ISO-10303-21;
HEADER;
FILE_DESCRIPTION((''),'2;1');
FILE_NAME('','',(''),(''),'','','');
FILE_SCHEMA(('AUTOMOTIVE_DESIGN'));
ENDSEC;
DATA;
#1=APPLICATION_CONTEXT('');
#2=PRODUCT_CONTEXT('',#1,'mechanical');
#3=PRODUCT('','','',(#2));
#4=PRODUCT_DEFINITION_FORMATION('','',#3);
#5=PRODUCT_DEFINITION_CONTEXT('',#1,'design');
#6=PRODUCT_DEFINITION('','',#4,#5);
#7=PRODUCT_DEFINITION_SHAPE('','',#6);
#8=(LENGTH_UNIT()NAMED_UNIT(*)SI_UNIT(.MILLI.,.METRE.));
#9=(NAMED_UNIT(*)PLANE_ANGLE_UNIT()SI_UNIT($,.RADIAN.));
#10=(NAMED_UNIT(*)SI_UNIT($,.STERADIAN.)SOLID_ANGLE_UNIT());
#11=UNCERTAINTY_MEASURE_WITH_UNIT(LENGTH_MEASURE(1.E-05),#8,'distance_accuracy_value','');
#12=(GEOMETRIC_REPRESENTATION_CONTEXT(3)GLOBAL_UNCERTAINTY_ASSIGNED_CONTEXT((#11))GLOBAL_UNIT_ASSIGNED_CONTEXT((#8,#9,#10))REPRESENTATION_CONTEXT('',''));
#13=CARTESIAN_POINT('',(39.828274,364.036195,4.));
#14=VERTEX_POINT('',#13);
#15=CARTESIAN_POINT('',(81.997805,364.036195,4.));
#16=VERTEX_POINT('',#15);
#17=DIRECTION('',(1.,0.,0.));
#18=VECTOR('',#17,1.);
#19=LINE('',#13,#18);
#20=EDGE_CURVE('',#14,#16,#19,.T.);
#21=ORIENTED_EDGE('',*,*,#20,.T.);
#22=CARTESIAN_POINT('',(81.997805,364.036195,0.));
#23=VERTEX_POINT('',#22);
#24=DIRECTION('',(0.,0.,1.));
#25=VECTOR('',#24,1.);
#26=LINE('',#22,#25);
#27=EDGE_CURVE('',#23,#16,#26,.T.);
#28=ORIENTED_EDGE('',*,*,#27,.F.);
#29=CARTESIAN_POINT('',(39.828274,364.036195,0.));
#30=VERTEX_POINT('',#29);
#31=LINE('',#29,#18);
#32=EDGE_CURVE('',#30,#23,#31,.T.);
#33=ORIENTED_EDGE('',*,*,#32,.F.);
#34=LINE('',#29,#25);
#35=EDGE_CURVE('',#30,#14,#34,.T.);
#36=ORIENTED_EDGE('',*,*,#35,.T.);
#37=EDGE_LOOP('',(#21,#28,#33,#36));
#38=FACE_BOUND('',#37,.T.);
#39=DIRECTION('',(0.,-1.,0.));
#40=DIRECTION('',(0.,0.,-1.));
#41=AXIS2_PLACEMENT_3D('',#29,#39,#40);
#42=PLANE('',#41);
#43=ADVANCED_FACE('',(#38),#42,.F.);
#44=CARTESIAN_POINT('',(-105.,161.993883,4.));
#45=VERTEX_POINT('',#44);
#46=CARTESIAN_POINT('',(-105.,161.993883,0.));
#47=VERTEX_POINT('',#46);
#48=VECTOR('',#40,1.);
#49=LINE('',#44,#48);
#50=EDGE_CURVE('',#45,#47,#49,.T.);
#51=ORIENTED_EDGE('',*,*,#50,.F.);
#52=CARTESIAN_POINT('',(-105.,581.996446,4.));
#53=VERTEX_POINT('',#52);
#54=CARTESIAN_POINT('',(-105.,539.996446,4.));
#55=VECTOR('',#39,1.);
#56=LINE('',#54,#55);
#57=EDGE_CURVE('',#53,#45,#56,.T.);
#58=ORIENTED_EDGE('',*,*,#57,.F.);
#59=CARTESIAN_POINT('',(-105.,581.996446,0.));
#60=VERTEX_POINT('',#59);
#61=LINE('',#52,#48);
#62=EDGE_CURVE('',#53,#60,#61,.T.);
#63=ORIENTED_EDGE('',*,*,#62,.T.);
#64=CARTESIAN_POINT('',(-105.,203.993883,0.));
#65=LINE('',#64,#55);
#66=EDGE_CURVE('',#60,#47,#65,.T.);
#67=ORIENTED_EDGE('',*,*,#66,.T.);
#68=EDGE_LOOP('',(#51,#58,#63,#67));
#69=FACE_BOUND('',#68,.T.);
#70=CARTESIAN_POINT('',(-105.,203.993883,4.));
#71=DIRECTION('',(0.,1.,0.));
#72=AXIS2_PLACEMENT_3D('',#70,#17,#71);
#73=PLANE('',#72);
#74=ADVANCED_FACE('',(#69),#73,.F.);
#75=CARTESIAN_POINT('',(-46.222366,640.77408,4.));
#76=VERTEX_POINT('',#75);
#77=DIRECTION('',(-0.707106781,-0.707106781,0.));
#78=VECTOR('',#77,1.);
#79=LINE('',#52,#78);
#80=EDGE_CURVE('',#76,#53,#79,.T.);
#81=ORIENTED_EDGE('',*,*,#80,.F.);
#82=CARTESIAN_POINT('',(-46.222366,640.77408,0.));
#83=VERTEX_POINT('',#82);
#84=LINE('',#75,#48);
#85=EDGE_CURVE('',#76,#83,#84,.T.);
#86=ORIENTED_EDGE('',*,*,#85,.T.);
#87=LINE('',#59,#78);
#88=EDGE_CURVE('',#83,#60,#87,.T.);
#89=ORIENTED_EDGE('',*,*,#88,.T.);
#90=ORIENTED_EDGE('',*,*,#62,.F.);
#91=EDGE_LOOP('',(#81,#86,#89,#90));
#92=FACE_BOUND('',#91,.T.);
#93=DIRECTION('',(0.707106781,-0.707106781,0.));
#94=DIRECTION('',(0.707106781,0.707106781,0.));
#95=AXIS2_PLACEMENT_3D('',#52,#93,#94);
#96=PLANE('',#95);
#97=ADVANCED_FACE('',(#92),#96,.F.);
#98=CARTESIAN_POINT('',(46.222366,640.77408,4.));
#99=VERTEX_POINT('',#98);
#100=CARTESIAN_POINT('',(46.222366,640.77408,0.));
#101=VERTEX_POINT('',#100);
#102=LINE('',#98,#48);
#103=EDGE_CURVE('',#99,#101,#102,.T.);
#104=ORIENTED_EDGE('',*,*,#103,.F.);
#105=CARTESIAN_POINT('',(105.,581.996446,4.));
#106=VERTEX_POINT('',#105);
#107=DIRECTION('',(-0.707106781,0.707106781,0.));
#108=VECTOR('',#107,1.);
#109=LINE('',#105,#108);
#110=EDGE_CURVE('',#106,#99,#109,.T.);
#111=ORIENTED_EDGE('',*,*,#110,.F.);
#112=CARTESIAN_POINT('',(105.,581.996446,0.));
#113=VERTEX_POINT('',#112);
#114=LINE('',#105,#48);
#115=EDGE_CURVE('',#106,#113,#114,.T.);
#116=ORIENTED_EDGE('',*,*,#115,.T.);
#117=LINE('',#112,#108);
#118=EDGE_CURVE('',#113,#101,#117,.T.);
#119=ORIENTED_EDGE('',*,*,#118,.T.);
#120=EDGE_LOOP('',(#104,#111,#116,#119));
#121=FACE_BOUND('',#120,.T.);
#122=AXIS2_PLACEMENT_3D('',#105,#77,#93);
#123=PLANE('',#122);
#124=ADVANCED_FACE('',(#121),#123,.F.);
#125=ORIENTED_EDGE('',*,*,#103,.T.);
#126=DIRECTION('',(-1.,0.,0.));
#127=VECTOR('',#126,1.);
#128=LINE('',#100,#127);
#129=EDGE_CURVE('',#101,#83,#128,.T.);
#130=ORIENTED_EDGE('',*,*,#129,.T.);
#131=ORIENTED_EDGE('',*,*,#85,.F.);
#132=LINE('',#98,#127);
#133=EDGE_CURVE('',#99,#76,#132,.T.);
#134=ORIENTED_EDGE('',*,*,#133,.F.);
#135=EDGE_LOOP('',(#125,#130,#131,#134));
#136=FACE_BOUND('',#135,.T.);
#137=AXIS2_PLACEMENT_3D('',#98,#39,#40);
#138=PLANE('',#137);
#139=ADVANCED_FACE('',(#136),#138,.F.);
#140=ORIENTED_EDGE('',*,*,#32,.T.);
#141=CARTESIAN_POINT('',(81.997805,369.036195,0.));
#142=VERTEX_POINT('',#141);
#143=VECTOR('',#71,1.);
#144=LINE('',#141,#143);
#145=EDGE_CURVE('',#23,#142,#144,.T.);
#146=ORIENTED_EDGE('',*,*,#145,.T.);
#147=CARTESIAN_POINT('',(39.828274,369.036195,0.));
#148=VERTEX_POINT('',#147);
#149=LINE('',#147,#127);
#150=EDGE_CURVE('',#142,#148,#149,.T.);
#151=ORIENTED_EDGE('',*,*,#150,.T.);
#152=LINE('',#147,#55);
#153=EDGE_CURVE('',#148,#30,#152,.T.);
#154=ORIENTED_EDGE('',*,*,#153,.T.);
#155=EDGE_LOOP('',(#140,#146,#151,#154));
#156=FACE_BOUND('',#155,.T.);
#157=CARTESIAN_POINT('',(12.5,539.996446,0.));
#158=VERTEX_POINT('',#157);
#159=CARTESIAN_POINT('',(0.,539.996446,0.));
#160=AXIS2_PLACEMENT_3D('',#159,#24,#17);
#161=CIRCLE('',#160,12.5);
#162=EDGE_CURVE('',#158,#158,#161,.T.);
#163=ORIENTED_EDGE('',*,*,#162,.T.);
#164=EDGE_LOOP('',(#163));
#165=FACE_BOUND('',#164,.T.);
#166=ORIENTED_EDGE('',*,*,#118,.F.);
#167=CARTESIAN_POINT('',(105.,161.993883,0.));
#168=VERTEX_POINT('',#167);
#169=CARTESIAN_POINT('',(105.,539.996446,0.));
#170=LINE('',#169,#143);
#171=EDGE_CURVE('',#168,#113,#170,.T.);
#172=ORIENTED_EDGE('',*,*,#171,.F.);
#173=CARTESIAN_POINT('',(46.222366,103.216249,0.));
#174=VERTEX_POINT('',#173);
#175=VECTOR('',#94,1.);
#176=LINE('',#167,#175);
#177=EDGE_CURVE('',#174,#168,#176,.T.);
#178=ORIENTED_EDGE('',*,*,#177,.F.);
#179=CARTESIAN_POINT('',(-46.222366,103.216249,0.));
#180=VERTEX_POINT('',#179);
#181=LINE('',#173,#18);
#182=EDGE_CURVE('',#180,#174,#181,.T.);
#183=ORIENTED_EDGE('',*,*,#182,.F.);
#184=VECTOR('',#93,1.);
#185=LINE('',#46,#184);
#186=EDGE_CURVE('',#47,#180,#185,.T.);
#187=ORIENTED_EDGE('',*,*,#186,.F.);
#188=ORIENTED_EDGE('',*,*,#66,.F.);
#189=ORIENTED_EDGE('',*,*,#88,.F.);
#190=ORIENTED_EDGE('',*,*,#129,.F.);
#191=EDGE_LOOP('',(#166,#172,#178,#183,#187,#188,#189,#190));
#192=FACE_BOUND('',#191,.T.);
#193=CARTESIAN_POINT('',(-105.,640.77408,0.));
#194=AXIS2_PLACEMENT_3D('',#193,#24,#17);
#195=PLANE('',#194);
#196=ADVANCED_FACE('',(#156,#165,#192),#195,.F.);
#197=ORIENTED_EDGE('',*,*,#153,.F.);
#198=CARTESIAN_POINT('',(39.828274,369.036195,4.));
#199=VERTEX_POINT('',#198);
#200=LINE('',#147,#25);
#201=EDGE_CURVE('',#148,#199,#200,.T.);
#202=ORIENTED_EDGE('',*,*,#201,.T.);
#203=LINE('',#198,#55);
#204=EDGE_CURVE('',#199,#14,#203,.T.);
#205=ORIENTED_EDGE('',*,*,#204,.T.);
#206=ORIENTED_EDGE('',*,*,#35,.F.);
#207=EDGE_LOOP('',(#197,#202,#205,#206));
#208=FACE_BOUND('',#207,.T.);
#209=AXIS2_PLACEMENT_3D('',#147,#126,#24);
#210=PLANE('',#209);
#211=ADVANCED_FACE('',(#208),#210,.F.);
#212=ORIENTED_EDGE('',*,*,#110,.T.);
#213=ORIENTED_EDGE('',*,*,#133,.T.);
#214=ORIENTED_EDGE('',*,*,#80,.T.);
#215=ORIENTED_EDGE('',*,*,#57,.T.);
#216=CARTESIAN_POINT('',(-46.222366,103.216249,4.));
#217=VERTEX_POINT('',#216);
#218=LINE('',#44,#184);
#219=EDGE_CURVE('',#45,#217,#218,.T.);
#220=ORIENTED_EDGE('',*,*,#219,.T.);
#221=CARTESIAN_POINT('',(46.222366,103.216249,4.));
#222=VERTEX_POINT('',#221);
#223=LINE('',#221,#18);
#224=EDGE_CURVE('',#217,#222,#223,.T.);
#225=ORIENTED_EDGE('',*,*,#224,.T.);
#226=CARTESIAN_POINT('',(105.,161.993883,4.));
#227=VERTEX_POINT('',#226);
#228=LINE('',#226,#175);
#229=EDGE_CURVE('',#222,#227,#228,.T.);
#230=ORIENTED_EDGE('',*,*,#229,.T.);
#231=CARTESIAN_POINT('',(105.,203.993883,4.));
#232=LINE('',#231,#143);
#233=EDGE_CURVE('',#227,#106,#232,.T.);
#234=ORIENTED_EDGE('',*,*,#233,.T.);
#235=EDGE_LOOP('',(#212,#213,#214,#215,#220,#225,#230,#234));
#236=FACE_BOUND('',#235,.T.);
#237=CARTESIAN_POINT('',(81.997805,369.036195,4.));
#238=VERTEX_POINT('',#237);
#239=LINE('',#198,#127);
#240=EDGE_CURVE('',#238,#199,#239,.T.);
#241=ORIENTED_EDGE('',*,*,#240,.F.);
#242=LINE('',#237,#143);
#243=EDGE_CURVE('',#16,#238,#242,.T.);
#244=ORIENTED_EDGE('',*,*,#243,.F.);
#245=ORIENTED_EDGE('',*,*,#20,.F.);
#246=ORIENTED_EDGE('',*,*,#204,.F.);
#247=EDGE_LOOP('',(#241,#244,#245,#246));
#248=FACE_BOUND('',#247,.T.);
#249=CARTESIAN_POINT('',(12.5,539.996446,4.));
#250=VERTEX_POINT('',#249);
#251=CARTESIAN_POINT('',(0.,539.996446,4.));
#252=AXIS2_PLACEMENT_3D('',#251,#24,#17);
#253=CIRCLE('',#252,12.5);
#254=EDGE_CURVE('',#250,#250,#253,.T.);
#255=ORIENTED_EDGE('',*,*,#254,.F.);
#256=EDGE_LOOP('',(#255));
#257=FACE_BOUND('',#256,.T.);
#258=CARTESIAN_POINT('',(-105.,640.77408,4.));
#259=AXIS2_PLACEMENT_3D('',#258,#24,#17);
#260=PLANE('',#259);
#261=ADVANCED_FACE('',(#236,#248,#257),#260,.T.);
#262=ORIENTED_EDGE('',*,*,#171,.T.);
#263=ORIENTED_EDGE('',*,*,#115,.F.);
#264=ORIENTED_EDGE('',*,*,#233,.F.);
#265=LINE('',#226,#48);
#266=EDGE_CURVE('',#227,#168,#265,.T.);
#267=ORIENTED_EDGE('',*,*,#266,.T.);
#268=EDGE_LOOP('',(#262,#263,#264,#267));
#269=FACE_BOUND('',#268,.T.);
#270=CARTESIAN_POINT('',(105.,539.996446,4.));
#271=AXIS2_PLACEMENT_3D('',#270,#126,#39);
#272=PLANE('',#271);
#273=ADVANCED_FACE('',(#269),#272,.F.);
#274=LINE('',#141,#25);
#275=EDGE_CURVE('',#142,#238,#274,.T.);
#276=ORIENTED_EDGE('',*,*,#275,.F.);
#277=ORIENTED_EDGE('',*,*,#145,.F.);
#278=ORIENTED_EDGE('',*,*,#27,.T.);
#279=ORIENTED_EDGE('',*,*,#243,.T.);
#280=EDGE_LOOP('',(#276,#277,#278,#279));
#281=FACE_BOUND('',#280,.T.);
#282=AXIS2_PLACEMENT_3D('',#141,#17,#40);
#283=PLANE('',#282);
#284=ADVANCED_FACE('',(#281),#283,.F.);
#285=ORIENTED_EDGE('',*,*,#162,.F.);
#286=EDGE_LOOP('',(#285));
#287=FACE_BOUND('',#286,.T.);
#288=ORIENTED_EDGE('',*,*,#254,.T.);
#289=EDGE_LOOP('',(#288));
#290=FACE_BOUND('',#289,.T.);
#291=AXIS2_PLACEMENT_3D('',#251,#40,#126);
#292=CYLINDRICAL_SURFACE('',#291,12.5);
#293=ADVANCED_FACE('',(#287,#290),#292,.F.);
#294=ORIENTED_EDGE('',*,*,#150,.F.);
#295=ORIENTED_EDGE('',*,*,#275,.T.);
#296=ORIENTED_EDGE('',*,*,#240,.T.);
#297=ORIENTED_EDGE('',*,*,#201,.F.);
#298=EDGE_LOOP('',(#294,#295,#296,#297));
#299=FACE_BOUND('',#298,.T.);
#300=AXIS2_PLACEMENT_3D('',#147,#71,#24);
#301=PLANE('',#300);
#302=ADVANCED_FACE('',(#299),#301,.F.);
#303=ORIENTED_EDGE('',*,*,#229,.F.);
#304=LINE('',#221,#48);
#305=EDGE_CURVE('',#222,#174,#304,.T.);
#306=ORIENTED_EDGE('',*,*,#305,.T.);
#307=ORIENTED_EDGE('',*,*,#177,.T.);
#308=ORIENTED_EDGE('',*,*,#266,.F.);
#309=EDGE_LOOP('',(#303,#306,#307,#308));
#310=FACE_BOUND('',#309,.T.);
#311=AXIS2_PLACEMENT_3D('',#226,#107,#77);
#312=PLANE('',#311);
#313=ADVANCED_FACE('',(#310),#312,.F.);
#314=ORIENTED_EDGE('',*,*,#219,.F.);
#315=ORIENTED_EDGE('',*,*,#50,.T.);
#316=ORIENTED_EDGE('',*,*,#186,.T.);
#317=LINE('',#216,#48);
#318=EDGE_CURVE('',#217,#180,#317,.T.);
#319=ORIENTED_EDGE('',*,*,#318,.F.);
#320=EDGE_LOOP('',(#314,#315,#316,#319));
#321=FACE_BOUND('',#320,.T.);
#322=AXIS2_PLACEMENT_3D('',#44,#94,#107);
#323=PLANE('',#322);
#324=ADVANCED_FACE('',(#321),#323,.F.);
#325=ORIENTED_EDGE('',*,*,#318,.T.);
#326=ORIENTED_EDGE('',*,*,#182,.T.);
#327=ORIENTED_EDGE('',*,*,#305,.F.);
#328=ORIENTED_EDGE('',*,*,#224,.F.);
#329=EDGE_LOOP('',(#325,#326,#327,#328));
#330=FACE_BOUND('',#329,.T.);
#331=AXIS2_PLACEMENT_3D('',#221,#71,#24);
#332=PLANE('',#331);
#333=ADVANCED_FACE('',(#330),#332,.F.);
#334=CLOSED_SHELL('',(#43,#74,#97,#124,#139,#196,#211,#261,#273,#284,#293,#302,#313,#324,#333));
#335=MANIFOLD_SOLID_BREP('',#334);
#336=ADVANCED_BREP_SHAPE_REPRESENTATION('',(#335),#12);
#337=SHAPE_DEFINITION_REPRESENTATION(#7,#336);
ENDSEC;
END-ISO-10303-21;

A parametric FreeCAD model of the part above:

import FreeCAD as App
import Part
import Sketcher


def add_polygon(sketch, points):
    """Adds a closed chain of lines whose ends are joined by coincident constraints."""
    first, n = sketch.GeometryCount, len(points)
    for a, b in zip(points, points[1:] + points[:1]):
        sketch.addGeometry(Part.LineSegment(App.Vector(*a, 0), App.Vector(*b, 0)), False)
    for i in range(n):
        sketch.addConstraint(Sketcher.Constraint("Coincident", first + i, 2, first + (i + 1) % n, 1))

doc = App.newDocument("Part")
body = doc.addObject("PartDesign::Body", "Body")

# Sketch on XY plane
sketch1 = body.newObject("Sketcher::SketchObject", "Sketch")
sketch1.AttachmentSupport = (doc.getObject("XY_Plane"), [""])
sketch1.MapMode = "FlatFace"
add_polygon(sketch1, [(-105, 162), (-46, 103), (46, 103), (105, 162), (105, 582), (46, 641), (-46, 641), (-105, 582)])  # lines 0-7
sketch1.addGeometry(Part.Circle(App.Vector(0, 540, 0), App.Vector(0, 0, 1), 12), False)  # 8
sketch1.addConstraint(Sketcher.Constraint("Horizontal", 1))
sketch1.addConstraint(Sketcher.Constraint("Vertical", 3))
sketch1.addConstraint(Sketcher.Constraint("Horizontal", 5))
sketch1.addConstraint(Sketcher.Constraint("Vertical", 7))
sketch1.addConstraint(Sketcher.Constraint("Symmetric", 3, 2, 6, 2, -2))
sketch1.addConstraint(Sketcher.Constraint("PointOnObject", 8, 3, -2))
sketch1.addConstraint(Sketcher.Constraint("Perpendicular", 0, 2))
sketch1.addConstraint(Sketcher.Constraint("Perpendicular", 2, 4))
sketch1.addConstraint(Sketcher.Constraint("Perpendicular", 4, 6))
sketch1.addConstraint(Sketcher.Constraint("Horizontal", 2, 2, 7, 2))
sketch1.addConstraint(Sketcher.Constraint("Vertical", 1, 2, 4, 2))
sketch1.addConstraint(Sketcher.Constraint("Vertical", 0, 2, 5, 2))
sketch1.addConstraint(Sketcher.Constraint("Diameter", 8, 25.0))
sketch1.addConstraint(Sketcher.Constraint("DistanceX", -1, 1, 2, 2, 105.0))
sketch1.addConstraint(Sketcher.Constraint("DistanceY", 8, 3, 3, 2, 42.0))
sketch1.addConstraint(Sketcher.Constraint("DistanceX", 1, 1, 1, 2, 92.444733))
sketch1.addConstraint(Sketcher.Constraint("DistanceY", 3, 1, 3, 2, 420.002563))
sketch1.addConstraint(Sketcher.Constraint("DistanceY", -1, 1, 0, 2, 103.216249))
pad1 = body.newObject("PartDesign::Pad", "Pad")
pad1.Profile = sketch1
pad1.Length = 4

# Sketch on XY plane
sketch2 = body.newObject("Sketcher::SketchObject", "Sketch001")
sketch2.AttachmentSupport = (doc.getObject("XY_Plane"), [""])
sketch2.MapMode = "FlatFace"
sketch2.AttachmentOffset = App.Placement(App.Vector(0, 0, 4), App.Rotation())
add_polygon(sketch2, [(40, 369), (40, 364), (82, 364), (82, 369)])  # lines 0-3
sketch2.addConstraint(Sketcher.Constraint("Vertical", 0))
sketch2.addConstraint(Sketcher.Constraint("Horizontal", 1))
sketch2.addConstraint(Sketcher.Constraint("Vertical", 2))
sketch2.addConstraint(Sketcher.Constraint("Horizontal", 3))
sketch2.addConstraint(Sketcher.Constraint("DistanceY", 0, 2, 0, 1, 5.0))
sketch2.addConstraint(Sketcher.Constraint("DistanceX", 1, 1, 1, 2, 42.169531))
sketch2.addConstraint(Sketcher.Constraint("DistanceX", -1, 1, 0, 2, 39.828274))
sketch2.addConstraint(Sketcher.Constraint("DistanceY", -1, 1, 0, 2, 364.036195))
pocket1 = body.newObject("PartDesign::Pocket", "Pocket")
pocket1.Profile = sketch2
pocket1.Type = "ThroughAll"

doc.recompute()
